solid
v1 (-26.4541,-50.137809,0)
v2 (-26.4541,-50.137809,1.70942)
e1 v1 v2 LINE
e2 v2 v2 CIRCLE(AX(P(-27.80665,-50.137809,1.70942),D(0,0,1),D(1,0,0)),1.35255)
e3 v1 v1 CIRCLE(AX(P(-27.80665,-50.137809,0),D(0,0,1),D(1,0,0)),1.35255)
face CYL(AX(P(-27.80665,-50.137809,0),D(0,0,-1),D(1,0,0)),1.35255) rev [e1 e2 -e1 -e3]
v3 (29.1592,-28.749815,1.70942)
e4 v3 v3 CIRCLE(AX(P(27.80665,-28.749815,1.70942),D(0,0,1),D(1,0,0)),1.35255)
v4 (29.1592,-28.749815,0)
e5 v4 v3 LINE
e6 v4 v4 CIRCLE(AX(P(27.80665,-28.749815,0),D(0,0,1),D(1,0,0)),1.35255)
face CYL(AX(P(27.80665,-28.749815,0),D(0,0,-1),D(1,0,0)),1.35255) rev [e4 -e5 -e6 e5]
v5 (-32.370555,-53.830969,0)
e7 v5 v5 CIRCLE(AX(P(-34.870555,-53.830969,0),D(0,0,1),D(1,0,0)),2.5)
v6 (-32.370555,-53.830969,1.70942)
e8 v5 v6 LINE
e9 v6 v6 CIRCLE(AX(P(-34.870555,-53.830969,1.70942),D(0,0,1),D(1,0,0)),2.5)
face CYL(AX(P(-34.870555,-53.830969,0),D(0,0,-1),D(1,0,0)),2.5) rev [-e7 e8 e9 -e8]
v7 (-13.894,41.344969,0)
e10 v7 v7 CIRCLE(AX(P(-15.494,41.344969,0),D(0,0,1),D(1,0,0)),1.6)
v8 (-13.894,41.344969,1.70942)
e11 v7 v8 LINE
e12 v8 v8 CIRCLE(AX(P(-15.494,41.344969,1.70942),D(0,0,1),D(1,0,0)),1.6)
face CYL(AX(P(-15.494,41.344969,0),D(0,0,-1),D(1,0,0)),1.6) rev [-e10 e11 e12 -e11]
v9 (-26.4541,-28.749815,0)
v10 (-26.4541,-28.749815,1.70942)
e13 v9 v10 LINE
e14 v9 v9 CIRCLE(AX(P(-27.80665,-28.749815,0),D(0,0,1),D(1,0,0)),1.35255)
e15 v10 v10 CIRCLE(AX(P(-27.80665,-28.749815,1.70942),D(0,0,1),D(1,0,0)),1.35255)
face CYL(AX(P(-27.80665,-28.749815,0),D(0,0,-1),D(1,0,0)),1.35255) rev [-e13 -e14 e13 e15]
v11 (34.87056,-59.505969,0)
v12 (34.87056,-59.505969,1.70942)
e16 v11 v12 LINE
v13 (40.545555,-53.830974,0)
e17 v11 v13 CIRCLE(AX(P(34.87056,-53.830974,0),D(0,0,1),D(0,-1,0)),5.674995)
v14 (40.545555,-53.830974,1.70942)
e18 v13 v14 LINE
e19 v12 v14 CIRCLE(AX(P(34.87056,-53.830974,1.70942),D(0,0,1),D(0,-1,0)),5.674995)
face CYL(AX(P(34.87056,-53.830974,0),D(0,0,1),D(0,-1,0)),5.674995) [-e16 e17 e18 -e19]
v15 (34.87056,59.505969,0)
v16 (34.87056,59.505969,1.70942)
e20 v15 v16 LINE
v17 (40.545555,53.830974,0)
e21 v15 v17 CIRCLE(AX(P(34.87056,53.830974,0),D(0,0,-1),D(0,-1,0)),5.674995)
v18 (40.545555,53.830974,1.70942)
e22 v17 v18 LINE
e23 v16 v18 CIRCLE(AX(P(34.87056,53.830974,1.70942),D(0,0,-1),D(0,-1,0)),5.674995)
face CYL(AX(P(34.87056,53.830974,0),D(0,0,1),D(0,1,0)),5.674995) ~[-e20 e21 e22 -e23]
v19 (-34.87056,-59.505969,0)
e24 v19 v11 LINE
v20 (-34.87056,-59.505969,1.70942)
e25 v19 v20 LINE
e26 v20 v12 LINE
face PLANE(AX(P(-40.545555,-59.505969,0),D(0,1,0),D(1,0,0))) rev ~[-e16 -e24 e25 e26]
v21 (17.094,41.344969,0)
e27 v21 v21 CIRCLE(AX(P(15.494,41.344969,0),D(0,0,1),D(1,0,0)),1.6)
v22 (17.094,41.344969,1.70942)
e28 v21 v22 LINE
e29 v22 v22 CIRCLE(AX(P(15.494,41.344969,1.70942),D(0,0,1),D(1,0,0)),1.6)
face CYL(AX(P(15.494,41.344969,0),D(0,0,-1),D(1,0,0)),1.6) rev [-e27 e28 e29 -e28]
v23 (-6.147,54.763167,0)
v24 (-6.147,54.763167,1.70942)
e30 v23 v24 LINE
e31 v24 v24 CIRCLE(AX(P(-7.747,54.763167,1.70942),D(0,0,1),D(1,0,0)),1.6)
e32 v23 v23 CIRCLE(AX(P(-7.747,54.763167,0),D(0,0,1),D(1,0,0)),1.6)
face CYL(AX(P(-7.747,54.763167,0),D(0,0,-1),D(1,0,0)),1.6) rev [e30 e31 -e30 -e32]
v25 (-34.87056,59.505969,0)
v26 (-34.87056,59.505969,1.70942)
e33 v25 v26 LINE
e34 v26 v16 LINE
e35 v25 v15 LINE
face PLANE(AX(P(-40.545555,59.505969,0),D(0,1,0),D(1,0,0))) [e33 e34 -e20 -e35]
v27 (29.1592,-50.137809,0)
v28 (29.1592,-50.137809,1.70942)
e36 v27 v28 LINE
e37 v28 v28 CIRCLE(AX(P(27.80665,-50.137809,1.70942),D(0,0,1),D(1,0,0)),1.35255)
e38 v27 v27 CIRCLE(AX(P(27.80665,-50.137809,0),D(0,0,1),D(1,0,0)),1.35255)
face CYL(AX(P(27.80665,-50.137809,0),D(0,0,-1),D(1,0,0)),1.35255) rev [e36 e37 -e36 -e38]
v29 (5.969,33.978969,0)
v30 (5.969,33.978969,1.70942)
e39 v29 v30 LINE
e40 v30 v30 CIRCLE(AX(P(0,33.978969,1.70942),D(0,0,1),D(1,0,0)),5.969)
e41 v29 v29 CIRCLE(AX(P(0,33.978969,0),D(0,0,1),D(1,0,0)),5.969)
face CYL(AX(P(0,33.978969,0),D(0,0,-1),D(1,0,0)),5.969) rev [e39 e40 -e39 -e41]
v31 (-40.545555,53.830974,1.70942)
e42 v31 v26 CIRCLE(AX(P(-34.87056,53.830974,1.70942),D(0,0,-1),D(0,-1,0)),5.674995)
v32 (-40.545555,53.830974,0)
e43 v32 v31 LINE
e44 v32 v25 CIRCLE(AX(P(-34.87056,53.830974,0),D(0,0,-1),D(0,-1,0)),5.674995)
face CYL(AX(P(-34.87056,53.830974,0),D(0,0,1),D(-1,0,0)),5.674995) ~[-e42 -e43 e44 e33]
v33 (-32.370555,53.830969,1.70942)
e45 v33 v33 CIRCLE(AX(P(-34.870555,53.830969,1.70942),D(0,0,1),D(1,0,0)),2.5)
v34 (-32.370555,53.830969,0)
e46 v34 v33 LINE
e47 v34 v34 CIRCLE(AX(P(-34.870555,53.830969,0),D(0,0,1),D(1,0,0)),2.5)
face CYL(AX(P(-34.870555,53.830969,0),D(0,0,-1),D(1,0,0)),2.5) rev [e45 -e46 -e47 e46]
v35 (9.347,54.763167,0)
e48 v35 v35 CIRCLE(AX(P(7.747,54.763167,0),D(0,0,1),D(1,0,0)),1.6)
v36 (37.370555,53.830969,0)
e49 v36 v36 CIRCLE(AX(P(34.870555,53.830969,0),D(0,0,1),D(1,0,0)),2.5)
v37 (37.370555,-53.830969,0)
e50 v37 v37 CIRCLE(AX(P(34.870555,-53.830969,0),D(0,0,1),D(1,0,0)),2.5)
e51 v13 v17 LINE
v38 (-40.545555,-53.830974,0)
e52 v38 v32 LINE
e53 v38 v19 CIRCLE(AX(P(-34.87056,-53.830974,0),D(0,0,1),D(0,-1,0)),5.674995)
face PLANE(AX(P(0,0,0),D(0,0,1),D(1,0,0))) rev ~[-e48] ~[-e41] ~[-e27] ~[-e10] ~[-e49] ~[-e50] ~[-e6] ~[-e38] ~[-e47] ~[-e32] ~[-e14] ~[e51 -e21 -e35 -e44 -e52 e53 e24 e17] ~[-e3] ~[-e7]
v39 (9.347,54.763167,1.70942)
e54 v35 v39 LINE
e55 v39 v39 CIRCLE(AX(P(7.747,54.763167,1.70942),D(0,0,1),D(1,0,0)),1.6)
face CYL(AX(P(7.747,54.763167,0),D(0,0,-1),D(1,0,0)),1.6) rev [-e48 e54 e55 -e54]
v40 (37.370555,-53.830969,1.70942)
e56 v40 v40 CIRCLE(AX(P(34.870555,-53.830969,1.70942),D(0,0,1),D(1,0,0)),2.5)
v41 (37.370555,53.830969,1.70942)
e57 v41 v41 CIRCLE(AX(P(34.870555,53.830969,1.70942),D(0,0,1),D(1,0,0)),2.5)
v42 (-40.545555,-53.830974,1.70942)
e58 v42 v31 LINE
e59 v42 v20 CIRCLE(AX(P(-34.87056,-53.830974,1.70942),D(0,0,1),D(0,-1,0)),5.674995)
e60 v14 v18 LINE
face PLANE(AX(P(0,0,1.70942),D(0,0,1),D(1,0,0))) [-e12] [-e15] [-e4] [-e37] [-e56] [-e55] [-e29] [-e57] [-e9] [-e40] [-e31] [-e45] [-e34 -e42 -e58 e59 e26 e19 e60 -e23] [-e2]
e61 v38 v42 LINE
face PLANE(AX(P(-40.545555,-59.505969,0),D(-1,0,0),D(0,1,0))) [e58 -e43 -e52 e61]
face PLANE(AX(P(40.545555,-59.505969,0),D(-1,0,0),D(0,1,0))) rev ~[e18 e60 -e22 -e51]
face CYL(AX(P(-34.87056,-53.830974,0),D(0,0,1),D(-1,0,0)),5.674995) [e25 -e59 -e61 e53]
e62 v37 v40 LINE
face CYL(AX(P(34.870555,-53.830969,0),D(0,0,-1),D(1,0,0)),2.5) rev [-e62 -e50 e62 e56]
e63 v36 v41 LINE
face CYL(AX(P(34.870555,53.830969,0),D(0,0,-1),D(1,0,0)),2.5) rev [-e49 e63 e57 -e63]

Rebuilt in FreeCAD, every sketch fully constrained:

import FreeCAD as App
import Part
import Sketcher
Q = App.Units.Quantity


def edges_at(feature, points):
    """Names of the edges that pass closest to the given points."""
    edges = feature.Shape.Edges
    near = lambda p: min(range(len(edges)), key=lambda i: edges[i].distToShape(Part.Vertex(*p))[0])
    return sorted({f"Edge{near(p) + 1}" for p in points})

doc = App.newDocument("Part")
body = doc.addObject("PartDesign::Body", "Body")

# Sketch on XY plane
sketch1 = body.newObject("Sketcher::SketchObject", "Sketch")
sketch1.AttachmentSupport = (doc.getObject("XY_Plane"), [""])
sketch1.MapMode = "FlatFace"
sketch1.addGeometry([
    Part.LineSegment(App.Vector(-40.545555, 59.505969, 0), App.Vector(-40.545555, -59.505969, 0)),  # 0
    Part.LineSegment(App.Vector(-40.545555, -59.505969, 0), App.Vector(40.545555, -59.505969, 0)),  # 1
    Part.LineSegment(App.Vector(40.545555, -59.505969, 0), App.Vector(40.545555, 59.505969, 0)),  # 2
    Part.LineSegment(App.Vector(40.545555, 59.505969, 0), App.Vector(-40.545555, 59.505969, 0)),  # 3
    Part.Circle(App.Vector(-34.870555, -53.830969, 0), App.Vector(0, 0, 1), 2.5),  # 4
    Part.Circle(App.Vector(-27.80665, -50.137809, 0), App.Vector(0, 0, 1), 1.35255),  # 5
    Part.Circle(App.Vector(-27.80665, -28.749815, 0), App.Vector(0, 0, 1), 1.35255),  # 6
    Part.Circle(App.Vector(27.80665, -50.137809, 0), App.Vector(0, 0, 1), 1.35255),  # 7
    Part.Circle(App.Vector(34.870555, -53.830969, 0), App.Vector(0, 0, 1), 2.5),  # 8
    Part.Circle(App.Vector(27.80665, -28.749815, 0), App.Vector(0, 0, 1), 1.35255),  # 9
    Part.Circle(App.Vector(-34.870555, 53.830969, 0), App.Vector(0, 0, 1), 2.5),  # 10
    Part.Circle(App.Vector(-15.494, 41.344969, 0), App.Vector(0, 0, 1), 1.6),  # 11
    Part.Circle(App.Vector(-7.747, 54.763167, 0), App.Vector(0, 0, 1), 1.6),  # 12
    Part.Circle(App.Vector(0, 33.978969, 0), App.Vector(0, 0, 1), 5.969),  # 13
    Part.Circle(App.Vector(15.494, 41.344969, 0), App.Vector(0, 0, 1), 1.6),  # 14
    Part.Circle(App.Vector(7.747, 54.763167, 0), App.Vector(0, 0, 1), 1.6),  # 15
    Part.Circle(App.Vector(34.870555, 53.830969, 0), App.Vector(0, 0, 1), 2.5),  # 16
], False)
sketch1.addConstraint([
    Sketcher.Constraint("Coincident", 0, 2, 1, 1),
    Sketcher.Constraint("Coincident", 1, 2, 2, 1),
    Sketcher.Constraint("Coincident", 2, 2, 3, 1),
    Sketcher.Constraint("Coincident", 3, 2, 0, 1),
    Sketcher.Constraint("Vertical", 0),
    Sketcher.Constraint("Horizontal", 1),
    Sketcher.Constraint("Vertical", 2),
    Sketcher.Constraint("Horizontal", 3),
    Sketcher.Constraint("Equal", 5, 6),
    Sketcher.Constraint("Equal", 6, 7),
    Sketcher.Constraint("Equal", 4, 8),
    Sketcher.Constraint("Equal", 7, 9),
    Sketcher.Constraint("Equal", 8, 10),
    Sketcher.Constraint("Equal", 11, 12),
    Sketcher.Constraint("Equal", 12, 14),
    Sketcher.Constraint("Equal", 14, 15),
    Sketcher.Constraint("Equal", 10, 16),
    Sketcher.Constraint("Symmetric", 8, 3, 10, 3, -1, 1),
    Sketcher.Constraint("Symmetric", 4, 3, 16, 3, -1, 1),
    Sketcher.Constraint("Symmetric", 0, 2, 2, 2, -1, 1),
    Sketcher.Constraint("Symmetric", 5, 3, 7, 3, -2),
    Sketcher.Constraint("Symmetric", 4, 3, 8, 3, -2),
    Sketcher.Constraint("Symmetric", 6, 3, 9, 3, -2),
    Sketcher.Constraint("Symmetric", 11, 3, 14, 3, -2),
    Sketcher.Constraint("Symmetric", 12, 3, 15, 3, -2),
    Sketcher.Constraint("PointOnObject", 13, 3, -2),
    Sketcher.Constraint("Vertical", 5, 3, 6, 3),
    Sketcher.Constraint("Diameter", 4, Q("5 mm")),
    Sketcher.Constraint("Diameter", 11, Q("3.2 mm")),
    Sketcher.Constraint("Diameter", 13, Q("11.938 mm")),
    Sketcher.Constraint("Diameter", 5, Q("2.7051 mm")),
    Sketcher.Constraint("DistanceX", 11, 3, -1, 1, Q("15.494 mm")),
    Sketcher.Constraint("DistanceX", 12, 3, -1, 1, Q("7.747 mm")),
    Sketcher.Constraint("DistanceY", 11, 3, 10, 3, Q("12.486 mm")),
    Sketcher.Constraint("DistanceY", 13, 3, 11, 3, Q("7.366 mm")),
    Sketcher.Constraint("DistanceX", 0, 2, 4, 3, Q("5.675 mm")),
    Sketcher.Constraint("DistanceY", 0, 2, 4, 3, Q("5.675 mm")),
    Sketcher.Constraint("DistanceX", 1, 1, 1, 2, Q("81.09111 mm")),
    Sketcher.Constraint("DistanceY", 0, 2, 0, 1, Q("119.011938 mm")),
    Sketcher.Constraint("DistanceX", 5, 3, 7, 3, Q("55.6133 mm")),
    Sketcher.Constraint("DistanceY", 11, 3, 12, 3, Q("13.418198 mm")),
    Sketcher.Constraint("DistanceY", 5, 3, -1, 1, Q("50.137809 mm")),
    Sketcher.Constraint("DistanceY", 6, 3, -1, 1, Q("28.749815 mm")),
])
pad1 = body.newObject("PartDesign::Pad", "Pad")
pad1.Profile = sketch1
pad1.Length = 1.70942
doc.recompute()

fillet = body.newObject("PartDesign::Fillet", "Fillet")
fillet.Base = (pad1, edges_at(pad1, [
    (40.546, 59.506, 0.855),
    (40.546, -59.506, 0.855),
    (-40.546, -59.506, 0.855),
    (-40.546, 59.506, 0.855),
]))
fillet.Radius = 5.674995

doc.recompute()
